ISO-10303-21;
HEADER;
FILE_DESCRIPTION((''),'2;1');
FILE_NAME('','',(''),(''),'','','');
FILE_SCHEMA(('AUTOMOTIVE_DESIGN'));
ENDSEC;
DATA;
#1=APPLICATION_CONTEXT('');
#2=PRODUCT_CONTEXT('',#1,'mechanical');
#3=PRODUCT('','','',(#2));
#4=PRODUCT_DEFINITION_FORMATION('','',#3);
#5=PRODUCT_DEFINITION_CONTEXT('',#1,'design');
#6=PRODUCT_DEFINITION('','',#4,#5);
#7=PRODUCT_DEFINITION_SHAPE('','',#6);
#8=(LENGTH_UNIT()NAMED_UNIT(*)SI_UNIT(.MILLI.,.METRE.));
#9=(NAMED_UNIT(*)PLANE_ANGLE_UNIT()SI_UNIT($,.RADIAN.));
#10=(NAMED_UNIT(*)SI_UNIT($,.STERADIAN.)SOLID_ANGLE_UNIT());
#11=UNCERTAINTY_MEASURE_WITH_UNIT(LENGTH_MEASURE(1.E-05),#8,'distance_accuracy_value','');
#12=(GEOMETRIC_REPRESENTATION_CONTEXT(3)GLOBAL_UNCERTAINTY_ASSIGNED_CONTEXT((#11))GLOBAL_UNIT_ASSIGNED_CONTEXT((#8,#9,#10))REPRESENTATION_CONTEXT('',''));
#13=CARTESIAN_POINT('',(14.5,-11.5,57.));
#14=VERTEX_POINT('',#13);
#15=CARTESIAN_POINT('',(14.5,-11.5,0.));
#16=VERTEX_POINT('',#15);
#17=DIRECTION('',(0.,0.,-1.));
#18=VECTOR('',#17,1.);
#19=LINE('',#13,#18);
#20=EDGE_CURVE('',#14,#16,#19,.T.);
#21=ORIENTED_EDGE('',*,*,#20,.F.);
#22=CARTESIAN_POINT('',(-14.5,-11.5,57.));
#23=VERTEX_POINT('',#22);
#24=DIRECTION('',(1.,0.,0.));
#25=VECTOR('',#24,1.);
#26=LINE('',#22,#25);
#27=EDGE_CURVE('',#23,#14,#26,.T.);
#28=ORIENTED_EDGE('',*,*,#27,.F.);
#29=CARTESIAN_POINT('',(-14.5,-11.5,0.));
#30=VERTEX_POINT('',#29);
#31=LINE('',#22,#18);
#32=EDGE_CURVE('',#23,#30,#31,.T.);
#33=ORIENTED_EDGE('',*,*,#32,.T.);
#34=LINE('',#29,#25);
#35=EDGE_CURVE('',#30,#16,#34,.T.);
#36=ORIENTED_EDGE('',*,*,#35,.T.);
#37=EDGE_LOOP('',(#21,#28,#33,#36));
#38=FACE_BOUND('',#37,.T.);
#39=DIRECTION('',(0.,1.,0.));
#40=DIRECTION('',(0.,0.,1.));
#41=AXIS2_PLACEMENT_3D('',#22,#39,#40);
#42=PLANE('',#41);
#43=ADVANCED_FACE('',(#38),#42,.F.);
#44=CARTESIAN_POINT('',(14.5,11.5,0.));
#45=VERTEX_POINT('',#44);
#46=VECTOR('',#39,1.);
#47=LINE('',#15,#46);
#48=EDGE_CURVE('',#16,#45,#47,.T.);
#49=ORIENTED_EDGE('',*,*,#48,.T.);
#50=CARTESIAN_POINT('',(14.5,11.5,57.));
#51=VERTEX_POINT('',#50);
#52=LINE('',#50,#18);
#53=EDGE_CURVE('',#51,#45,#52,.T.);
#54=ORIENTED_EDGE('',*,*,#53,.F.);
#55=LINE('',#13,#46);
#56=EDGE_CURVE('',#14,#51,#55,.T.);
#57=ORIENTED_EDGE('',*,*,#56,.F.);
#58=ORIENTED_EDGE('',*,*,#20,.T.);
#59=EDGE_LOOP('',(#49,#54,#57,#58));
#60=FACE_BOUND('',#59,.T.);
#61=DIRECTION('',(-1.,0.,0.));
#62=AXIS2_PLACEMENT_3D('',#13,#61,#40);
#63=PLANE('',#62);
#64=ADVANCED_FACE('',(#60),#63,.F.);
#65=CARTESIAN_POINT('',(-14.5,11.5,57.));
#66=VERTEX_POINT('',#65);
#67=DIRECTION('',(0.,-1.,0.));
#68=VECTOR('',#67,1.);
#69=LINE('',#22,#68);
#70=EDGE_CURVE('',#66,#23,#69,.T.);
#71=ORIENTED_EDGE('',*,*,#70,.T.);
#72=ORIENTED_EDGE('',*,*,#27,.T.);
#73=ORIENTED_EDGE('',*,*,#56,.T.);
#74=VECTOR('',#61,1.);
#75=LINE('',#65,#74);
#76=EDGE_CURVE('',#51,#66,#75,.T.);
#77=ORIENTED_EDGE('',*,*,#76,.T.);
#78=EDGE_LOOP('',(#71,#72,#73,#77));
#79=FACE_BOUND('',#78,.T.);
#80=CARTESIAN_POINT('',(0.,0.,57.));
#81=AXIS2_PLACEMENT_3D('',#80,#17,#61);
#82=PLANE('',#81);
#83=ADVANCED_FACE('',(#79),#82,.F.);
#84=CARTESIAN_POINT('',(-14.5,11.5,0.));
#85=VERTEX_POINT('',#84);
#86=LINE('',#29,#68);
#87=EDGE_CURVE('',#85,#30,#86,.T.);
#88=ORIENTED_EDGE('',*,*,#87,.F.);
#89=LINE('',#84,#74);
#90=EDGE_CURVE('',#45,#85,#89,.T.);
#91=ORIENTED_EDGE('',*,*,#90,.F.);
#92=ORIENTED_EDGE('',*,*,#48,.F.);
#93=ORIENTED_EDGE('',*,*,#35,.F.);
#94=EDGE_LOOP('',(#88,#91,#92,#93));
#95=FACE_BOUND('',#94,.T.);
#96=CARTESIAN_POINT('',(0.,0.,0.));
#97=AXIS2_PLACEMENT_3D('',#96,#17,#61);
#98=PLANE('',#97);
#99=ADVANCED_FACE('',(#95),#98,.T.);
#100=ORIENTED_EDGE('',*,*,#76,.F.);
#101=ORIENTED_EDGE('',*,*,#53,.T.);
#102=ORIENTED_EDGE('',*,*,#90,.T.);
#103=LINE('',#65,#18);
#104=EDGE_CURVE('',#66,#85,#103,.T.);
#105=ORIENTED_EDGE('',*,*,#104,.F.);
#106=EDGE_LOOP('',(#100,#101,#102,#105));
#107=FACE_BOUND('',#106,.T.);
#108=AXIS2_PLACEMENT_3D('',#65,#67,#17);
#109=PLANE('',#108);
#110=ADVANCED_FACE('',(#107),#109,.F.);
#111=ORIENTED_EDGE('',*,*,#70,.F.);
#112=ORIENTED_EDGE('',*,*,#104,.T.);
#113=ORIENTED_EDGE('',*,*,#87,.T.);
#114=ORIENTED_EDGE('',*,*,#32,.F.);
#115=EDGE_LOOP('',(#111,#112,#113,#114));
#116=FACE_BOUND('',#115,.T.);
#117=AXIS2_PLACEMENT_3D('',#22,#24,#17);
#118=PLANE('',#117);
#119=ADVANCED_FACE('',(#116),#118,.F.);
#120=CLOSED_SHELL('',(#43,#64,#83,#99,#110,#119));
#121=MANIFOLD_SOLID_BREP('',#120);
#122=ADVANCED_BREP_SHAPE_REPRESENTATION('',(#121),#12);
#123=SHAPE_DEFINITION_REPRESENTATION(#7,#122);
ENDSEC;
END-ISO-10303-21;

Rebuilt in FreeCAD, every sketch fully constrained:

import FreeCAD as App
import Part
import Sketcher
from FreeCAD import Vector


def add_polygon(sketch, points):
    """Adds a closed chain of lines whose ends are joined by coincident constraints."""
    first, n = sketch.GeometryCount, len(points)
    for a, b in zip(points, points[1:] + points[:1]):
        sketch.addGeometry(Part.LineSegment(App.Vector(*a, 0), App.Vector(*b, 0)), False)
    for i in range(n):
        sketch.addConstraint(Sketcher.Constraint("Coincident", first + i, 2, first + (i + 1) % n, 1))

doc = App.newDocument("Part")
body = doc.addObject("PartDesign::Body", "Body")

# Sketch on XY plane
sketch1 = body.newObject("Sketcher::SketchObject", "Sketch")
sketch1.AttachmentSupport = (doc.getObject("XY_Plane"), [""])
sketch1.MapMode = "FlatFace"
add_polygon(sketch1, [(-14.5, 11.5), (-14.5, -11.5), (14.5, -11.5), (14.5, 11.5)])  # lines 0-3
sketch1.addConstraint([
    Sketcher.Constraint("Vertical", 0),
    Sketcher.Constraint("Horizontal", 1),
    Sketcher.Constraint("Vertical", 2),
    Sketcher.Constraint("Horizontal", 3),
    Sketcher.Constraint("Symmetric", 0, 2, 2, 2, -1, 1),
    Sketcher.Constraint("DistanceX", 1, 1, 1, 2, 29.0),
    Sketcher.Constraint("DistanceY", 0, 2, 0, 1, 23.0),
])
pad1 = body.newObject("PartDesign::Pad", "Pad")
pad1.Profile = sketch1
pad1.Length = 57

doc.recompute()
